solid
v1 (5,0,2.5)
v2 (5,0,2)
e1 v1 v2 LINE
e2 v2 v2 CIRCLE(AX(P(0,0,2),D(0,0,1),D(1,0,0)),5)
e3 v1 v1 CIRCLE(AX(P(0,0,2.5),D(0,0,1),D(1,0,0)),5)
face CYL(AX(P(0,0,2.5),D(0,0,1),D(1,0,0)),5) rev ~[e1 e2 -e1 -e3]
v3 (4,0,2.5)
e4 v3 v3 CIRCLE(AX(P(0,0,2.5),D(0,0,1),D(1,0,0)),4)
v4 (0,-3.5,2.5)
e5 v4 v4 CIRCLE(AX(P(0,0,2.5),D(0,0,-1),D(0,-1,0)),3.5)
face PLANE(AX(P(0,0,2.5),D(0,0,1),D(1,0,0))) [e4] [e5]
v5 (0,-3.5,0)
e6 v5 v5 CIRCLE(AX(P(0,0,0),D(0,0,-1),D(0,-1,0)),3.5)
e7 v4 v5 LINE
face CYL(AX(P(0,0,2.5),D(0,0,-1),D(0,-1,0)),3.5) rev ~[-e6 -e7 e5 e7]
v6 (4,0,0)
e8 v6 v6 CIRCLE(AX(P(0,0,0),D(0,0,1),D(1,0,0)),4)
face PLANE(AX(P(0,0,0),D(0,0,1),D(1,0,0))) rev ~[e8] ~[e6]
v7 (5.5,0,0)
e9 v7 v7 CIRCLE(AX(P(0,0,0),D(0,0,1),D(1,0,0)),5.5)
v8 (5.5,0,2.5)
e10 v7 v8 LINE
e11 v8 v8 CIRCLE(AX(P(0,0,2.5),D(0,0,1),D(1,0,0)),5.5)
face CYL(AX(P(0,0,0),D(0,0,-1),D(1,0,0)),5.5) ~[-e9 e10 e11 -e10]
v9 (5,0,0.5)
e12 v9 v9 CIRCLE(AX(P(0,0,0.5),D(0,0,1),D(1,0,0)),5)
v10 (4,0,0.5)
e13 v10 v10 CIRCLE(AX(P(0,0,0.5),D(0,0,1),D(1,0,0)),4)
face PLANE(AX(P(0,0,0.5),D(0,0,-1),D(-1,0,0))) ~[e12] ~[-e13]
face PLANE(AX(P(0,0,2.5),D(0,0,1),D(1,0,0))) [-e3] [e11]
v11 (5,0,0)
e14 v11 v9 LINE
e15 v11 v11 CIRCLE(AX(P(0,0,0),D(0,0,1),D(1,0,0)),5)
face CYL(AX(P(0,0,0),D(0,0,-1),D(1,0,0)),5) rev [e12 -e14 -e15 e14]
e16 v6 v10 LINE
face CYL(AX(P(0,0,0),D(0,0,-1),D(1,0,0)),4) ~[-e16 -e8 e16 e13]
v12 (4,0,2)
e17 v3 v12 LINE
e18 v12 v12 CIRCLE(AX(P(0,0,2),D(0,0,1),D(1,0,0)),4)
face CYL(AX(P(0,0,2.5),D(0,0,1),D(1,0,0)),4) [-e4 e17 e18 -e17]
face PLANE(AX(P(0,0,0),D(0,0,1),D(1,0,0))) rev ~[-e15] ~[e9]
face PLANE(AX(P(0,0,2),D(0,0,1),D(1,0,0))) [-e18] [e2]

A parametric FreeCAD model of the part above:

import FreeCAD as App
import Part
import Sketcher

doc = App.newDocument("Part")
params = doc.addObject("Spreadsheet::Sheet", "Params")
for row, (alias, value) in enumerate([
    ("sketch1_diameter", "11 mm"),
    ("pad1_length", "2.5 mm"),
    ("sketch2_diameter", "7 mm"),
    ("hole_diameter", "7 mm"),
    ("sketch3_diameter", "10 mm"),
    ("sketch3_diameter2", "8 mm"),
    ("pocket1_length", "0.5 mm"),
], start=1):
    params.set(f"A{row}", alias)
    params.set(f"B{row}", "=" + value)
    params.setAlias(f"B{row}", alias)

body = doc.addObject("PartDesign::Body", "Body")

sketch1 = body.newObject("Sketcher::SketchObject", "Sketch")
sketch1.AttachmentSupport = (doc.getObject("XY_Plane"), [""])
sketch1.MapMode = "FlatFace"
sketch1.addGeometry(Part.Circle(App.Vector(0, 0, 0), App.Vector(0, 0, 1), 5.5), False)
sketch1.addConstraint([
    Sketcher.Constraint("Coincident", 0, 3, -1, 1),
    Sketcher.Constraint("Diameter", 0, 11.0),
])
sketch1.setExpression("Constraints[1]", "Params.sketch1_diameter")
pad1 = body.newObject("PartDesign::Pad", "Pad")
pad1.Profile = sketch1
pad1.setExpression("Length", "Params.pad1_length")

sketch2 = body.newObject("Sketcher::SketchObject", "Sketch001")
sketch2.AttachmentSupport = (doc.getObject("XY_Plane"), [""])
sketch2.MapMode = "FlatFace"
sketch2.AttachmentOffset = App.Placement(App.Vector(0, 0, 2.5), App.Rotation())
sketch2.addGeometry(Part.Circle(App.Vector(0, 0, 0), App.Vector(0, 0, 1), 3.5), False)
sketch2.addConstraint([
    Sketcher.Constraint("Coincident", 0, 3, -1, 1),
    Sketcher.Constraint("Diameter", 0, 7.0),
])
sketch2.setExpression("Constraints[1]", "Params.sketch2_diameter")
doc.recompute()
hole = body.newObject("PartDesign::Hole", "Hole")
hole.Profile = sketch2
hole.ThreadType = "None"
hole.setExpression("Diameter", "Params.hole_diameter")
hole.DepthType = "ThroughAll"

sketch3 = body.newObject("Sketcher::SketchObject", "Sketch002")
sketch3.AttachmentSupport = (doc.getObject("XY_Plane"), [""])
sketch3.MapMode = "FlatFace"
sketch3.AttachmentOffset = App.Placement(App.Vector(0, 0, 2.5), App.Rotation())
sketch3.addGeometry([
    Part.Circle(App.Vector(0, 0, 0), App.Vector(0, 0, 1), 5),
    Part.Circle(App.Vector(0, 0, 0), App.Vector(0, 0, 1), 4),
], False)
sketch3.addConstraint([
    Sketcher.Constraint("Coincident", 0, 3, -1, 1),
    Sketcher.Constraint("Coincident", 1, 3, -1, 1),
    Sketcher.Constraint("Diameter", 0, 10.0),
    Sketcher.Constraint("Diameter", 1, 8.0),
])
sketch3.setExpression("Constraints[2]", "Params.sketch3_diameter")
sketch3.setExpression("Constraints[3]", "Params.sketch3_diameter2")
pocket1 = body.newObject("PartDesign::Pocket", "Pocket")
pocket1.Profile = sketch3
pocket1.setExpression("Length", "Params.pocket1_length")
doc.recompute()

datumplane = body.newObject("PartDesign::Plane", "DatumPlane")
datumplane.AttachmentSupport = (doc.getObject("XY_Plane"), [""])
datumplane.MapMode = "FlatFace"
datumplane.AttachmentOffset = App.Placement(App.Vector(0, 0, 1.25), App.Rotation())
mirrored = body.newObject("PartDesign::Mirrored", "Mirrored")
mirrored.Originals = [pocket1]
mirrored.MirrorPlane = (datumplane, [""])
body.Tip = mirrored

doc.recompute()
